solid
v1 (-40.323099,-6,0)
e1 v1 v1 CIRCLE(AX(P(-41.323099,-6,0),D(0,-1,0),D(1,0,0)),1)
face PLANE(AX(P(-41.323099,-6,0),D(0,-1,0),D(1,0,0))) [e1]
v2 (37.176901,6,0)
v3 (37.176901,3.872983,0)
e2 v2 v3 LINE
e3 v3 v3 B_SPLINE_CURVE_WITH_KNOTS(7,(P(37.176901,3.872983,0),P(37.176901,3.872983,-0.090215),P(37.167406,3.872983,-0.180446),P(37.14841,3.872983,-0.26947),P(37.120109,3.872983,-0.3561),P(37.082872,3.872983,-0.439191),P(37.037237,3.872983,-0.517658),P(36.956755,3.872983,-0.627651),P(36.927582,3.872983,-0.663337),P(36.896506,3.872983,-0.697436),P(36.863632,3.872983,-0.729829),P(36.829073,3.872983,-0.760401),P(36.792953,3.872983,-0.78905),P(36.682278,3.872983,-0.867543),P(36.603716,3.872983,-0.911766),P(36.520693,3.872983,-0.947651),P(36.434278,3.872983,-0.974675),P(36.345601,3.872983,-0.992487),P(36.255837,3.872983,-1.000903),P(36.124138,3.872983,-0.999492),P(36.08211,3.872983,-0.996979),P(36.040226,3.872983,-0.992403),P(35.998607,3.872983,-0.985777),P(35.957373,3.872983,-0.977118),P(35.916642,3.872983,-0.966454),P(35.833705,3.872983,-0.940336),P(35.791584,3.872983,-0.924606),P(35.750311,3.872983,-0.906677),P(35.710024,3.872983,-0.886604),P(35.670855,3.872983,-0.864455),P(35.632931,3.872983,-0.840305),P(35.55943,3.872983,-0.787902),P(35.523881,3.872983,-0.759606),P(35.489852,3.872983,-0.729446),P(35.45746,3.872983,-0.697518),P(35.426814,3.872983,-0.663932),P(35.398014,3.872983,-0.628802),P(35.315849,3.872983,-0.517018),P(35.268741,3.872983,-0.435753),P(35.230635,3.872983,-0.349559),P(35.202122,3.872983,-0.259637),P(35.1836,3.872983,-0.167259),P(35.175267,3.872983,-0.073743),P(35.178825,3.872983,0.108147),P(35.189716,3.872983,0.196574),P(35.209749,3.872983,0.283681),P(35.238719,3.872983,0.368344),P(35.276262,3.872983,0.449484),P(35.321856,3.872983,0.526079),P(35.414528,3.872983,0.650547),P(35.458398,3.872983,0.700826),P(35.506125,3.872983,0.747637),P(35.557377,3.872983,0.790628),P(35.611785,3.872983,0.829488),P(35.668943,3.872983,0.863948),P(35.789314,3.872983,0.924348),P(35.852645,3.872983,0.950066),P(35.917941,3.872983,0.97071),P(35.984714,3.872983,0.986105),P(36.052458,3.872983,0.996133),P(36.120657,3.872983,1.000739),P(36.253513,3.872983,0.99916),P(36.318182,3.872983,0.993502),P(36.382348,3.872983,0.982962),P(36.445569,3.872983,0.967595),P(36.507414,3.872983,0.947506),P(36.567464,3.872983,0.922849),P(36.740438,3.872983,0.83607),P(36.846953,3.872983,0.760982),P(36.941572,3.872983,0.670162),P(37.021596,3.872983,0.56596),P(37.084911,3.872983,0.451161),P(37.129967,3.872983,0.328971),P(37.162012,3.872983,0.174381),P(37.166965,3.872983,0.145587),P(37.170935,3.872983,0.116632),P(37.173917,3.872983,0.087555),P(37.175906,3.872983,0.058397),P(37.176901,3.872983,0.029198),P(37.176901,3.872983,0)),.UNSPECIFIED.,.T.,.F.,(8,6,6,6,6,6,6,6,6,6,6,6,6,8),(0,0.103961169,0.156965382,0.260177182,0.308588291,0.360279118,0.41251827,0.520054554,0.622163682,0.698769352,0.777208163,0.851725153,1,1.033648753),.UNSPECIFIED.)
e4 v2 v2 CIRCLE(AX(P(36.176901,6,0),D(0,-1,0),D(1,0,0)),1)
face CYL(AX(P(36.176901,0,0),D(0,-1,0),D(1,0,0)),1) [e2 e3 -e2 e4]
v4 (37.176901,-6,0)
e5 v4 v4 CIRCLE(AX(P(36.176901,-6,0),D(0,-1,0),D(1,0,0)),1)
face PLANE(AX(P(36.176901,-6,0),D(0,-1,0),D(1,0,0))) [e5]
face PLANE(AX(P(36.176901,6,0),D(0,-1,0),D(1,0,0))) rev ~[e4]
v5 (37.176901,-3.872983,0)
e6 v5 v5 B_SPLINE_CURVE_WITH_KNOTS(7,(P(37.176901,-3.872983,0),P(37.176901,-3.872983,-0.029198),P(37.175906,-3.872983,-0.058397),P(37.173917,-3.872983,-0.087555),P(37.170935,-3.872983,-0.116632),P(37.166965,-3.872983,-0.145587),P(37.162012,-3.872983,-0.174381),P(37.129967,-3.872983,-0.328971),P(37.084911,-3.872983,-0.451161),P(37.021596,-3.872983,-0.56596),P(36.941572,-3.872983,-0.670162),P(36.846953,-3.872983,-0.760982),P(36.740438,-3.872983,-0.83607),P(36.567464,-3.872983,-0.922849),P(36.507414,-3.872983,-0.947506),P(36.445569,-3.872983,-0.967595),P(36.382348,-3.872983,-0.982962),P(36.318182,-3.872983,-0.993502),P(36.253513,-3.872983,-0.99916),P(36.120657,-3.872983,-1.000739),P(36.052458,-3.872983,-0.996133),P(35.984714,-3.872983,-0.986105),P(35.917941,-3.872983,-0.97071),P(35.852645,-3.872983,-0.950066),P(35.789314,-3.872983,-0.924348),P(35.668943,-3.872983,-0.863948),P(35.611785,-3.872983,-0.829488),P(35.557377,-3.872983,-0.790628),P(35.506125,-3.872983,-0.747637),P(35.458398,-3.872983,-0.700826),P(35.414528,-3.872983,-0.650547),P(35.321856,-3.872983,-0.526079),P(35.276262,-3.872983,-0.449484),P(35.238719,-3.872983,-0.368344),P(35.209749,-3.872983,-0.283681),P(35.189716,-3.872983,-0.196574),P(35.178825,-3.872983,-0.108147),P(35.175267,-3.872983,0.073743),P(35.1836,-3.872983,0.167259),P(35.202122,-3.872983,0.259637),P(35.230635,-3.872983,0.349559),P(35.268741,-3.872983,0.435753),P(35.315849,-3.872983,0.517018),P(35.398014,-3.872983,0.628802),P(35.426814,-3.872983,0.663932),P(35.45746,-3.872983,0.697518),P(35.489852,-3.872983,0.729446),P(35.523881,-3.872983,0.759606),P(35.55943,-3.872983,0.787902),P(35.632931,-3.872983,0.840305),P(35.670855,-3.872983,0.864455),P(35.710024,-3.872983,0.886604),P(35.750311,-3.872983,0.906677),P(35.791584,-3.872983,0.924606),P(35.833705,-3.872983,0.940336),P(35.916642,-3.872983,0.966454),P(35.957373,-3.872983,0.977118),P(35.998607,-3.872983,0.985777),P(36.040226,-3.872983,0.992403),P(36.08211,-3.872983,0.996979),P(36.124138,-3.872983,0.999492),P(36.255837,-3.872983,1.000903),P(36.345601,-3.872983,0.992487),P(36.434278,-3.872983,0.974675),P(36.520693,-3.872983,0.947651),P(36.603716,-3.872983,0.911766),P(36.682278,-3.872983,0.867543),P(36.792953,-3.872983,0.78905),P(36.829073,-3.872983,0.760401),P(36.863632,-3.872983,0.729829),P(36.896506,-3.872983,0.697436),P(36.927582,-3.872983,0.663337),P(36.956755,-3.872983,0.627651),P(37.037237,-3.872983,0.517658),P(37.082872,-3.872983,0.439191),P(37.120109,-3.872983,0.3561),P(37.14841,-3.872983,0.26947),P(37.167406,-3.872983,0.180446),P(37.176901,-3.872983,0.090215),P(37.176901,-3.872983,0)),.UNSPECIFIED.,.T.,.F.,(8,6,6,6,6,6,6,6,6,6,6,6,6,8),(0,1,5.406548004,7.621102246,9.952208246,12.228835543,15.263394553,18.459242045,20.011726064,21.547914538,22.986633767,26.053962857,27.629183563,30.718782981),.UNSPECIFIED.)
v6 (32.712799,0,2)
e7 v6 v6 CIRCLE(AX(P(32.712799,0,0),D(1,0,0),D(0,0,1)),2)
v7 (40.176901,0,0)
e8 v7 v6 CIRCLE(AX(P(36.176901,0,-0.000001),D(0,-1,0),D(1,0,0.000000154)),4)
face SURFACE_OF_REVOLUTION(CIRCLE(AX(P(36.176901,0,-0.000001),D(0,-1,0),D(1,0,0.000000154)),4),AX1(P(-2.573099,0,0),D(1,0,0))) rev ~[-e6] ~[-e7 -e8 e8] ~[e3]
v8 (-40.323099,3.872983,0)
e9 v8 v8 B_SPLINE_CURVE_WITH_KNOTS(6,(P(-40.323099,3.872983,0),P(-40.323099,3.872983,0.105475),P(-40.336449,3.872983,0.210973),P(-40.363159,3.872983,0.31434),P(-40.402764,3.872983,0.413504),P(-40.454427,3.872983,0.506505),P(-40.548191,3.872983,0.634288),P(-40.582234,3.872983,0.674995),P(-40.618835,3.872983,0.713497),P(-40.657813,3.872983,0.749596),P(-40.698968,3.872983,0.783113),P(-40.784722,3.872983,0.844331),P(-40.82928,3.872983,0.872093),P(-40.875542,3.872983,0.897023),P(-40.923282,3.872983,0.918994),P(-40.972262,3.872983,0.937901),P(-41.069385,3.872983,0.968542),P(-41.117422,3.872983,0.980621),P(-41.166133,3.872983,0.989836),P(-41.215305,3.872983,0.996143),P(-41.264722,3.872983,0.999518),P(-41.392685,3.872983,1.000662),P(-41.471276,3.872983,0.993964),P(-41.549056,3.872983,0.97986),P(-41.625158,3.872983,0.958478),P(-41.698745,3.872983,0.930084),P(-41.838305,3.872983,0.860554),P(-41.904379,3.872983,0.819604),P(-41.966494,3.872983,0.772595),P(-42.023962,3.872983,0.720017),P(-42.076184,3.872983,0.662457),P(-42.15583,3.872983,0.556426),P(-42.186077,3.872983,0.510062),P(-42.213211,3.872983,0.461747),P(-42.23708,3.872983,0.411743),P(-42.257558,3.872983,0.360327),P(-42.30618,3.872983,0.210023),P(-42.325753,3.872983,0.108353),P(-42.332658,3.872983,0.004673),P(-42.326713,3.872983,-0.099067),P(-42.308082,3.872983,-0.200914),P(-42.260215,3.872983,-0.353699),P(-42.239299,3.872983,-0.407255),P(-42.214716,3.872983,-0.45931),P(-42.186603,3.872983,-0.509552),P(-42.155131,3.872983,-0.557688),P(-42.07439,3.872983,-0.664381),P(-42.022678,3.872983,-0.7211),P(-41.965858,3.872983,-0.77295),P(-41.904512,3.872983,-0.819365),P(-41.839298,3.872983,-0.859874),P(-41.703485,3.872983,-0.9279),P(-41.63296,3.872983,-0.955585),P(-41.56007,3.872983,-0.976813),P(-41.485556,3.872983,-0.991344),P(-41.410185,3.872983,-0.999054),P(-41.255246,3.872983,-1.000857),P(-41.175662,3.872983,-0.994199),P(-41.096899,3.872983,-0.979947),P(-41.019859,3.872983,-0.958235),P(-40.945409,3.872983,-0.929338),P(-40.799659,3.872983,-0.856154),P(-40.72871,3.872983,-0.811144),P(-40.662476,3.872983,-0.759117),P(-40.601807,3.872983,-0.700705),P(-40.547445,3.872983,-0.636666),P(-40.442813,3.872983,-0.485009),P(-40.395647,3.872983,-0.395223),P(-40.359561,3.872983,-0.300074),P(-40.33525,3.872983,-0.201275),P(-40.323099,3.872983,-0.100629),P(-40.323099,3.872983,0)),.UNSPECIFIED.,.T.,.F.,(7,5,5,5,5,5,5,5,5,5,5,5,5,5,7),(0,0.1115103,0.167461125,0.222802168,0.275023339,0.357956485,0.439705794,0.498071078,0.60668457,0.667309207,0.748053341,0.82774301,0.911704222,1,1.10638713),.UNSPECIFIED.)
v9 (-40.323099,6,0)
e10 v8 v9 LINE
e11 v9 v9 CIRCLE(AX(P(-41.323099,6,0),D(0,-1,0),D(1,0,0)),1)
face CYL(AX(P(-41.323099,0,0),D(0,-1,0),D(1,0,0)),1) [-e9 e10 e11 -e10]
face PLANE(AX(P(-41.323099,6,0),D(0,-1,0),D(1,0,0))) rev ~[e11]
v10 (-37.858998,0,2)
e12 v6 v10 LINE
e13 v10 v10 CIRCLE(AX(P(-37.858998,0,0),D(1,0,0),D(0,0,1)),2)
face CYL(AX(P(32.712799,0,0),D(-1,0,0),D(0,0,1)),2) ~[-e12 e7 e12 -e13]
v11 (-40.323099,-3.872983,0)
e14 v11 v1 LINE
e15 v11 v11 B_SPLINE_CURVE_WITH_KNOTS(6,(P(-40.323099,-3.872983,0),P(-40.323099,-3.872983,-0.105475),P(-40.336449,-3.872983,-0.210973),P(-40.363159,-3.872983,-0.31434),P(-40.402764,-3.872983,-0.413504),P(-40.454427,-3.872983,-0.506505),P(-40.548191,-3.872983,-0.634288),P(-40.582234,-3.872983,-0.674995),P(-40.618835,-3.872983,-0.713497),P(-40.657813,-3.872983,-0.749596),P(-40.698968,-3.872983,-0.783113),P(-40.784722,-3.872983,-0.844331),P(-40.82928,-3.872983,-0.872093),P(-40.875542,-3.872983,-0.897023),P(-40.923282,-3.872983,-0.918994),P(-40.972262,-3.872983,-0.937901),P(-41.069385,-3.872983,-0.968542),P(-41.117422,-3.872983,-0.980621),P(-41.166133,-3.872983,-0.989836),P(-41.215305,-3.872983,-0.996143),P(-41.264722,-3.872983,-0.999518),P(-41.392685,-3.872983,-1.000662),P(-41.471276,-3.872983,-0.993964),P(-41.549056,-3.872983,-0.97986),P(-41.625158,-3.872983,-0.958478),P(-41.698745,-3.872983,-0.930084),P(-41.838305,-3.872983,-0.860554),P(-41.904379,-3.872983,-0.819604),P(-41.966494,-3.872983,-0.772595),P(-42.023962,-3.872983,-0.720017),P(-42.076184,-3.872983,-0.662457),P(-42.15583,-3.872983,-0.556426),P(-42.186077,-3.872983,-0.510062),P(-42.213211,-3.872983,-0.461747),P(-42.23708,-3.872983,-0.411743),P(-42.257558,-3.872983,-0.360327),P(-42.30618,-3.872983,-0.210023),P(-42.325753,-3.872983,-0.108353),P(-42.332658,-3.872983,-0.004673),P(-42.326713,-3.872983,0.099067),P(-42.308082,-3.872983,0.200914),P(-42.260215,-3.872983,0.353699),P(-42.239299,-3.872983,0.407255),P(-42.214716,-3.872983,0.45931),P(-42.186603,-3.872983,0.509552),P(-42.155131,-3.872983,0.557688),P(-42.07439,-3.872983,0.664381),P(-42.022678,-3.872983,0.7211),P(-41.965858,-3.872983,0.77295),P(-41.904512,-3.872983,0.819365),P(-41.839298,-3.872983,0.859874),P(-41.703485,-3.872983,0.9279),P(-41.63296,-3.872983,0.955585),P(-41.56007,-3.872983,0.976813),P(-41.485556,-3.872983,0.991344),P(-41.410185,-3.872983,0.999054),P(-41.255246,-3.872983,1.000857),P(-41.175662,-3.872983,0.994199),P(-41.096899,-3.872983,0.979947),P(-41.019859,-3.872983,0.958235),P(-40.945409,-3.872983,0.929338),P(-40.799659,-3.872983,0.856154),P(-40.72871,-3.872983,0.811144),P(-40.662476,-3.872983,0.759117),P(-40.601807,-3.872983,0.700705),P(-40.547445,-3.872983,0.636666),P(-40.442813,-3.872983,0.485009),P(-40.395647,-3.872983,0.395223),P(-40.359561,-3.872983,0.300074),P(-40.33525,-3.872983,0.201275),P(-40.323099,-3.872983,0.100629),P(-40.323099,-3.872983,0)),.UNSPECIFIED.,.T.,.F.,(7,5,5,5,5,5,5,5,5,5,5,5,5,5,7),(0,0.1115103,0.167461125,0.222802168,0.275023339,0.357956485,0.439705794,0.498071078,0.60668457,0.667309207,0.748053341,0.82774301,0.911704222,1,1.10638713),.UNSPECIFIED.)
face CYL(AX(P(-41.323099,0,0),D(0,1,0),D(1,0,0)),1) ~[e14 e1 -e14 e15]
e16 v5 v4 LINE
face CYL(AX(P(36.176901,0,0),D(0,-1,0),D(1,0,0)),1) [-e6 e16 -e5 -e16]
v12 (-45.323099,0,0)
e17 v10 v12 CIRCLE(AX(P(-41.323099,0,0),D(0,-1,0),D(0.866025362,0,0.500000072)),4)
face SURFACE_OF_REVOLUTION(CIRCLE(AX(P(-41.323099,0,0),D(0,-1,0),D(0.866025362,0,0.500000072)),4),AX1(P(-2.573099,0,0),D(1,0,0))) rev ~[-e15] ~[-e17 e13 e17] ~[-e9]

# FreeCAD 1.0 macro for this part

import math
import FreeCAD as App
import Part
import Sketcher
from FreeCAD import Vector

doc = App.newDocument("Part")
params = doc.addObject("Spreadsheet::Sheet", "Params")
for row, (alias, value) in enumerate([
    ("sketch1_radius", "4 mm"),
    ("sketch1_width", "85.5 mm"),
    ("revolution_angle", "360 deg"),
    ("sketch2_diameter", "2 mm"),
    ("pad1_length", "12 mm"),
], start=1):
    params.set(f"A{row}", alias)
    params.set(f"B{row}", "=" + value)
    params.setAlias(f"B{row}", alias)

body = doc.addObject("PartDesign::Body", "Body")

sketch1 = doc.addObject("Sketcher::SketchObject", "Sketch")
body.addObject(sketch1)
sketch1.AttachmentSupport = (doc.XZ_Plane, [""])
sketch1.MapMode = "FlatFace"
sketch1.addGeometry(Part.LineSegment(Vector(32.7, 2, 0), Vector(-37.9, 2, 0)), False)
sketch1.addGeometry(Part.ArcOfCircle(Part.Circle(Vector(-41.3, 0, 0), Vector(0, 0, 1), 4), math.radians(30), math.radians(180)), False)
sketch1.addGeometry(Part.LineSegment(Vector(-45.3, 0, 0), Vector(40.2, 0, 0)), False)
sketch1.addGeometry(Part.ArcOfCircle(Part.Circle(Vector(36.2, 0, 0), Vector(0, 0, 1), 4), math.radians(0), math.radians(150)), False)
sketch1.addConstraint(Sketcher.Constraint("Coincident", 0, 2, 1, 1))
sketch1.addConstraint(Sketcher.Constraint("Coincident", 1, 2, 2, 1))
sketch1.addConstraint(Sketcher.Constraint("Coincident", 2, 2, 3, 1))
sketch1.addConstraint(Sketcher.Constraint("Coincident", 3, 2, 0, 1))
sketch1.addConstraint(Sketcher.Constraint("Horizontal", 0))
sketch1.addConstraint(Sketcher.Constraint("Horizontal", 2))
sketch1.addConstraint(Sketcher.Constraint("Equal", 1, 3))
sketch1.addConstraint(Sketcher.Constraint("PointOnObject", 1, 3, -1))
sketch1.addConstraint(Sketcher.Constraint("PointOnObject", 3, 3, -1))
sketch1.addConstraint(Sketcher.Constraint("PointOnObject", 1, 2, -1))
sketch1.addConstraint(Sketcher.Constraint("Radius", 1, 4.0))
sketch1.addConstraint(Sketcher.Constraint("DistanceX", 2, 1, 2, 2, 85.5))
sketch1.addConstraint(Sketcher.Constraint("DistanceY", -1, 1, 0, 2, 2.0))
sketch1.addConstraint(Sketcher.Constraint("DistanceX", 1, 3, -1, 1, 41.323099))
sketch1.setExpression("Constraints[10]", "Params.sketch1_radius")
sketch1.setExpression("Constraints[11]", "Params.sketch1_width")
revolution = doc.addObject("PartDesign::Revolution", "Revolution")
body.addObject(revolution)
revolution.Profile = sketch1
revolution.ReferenceAxis = (sketch1, ["H_Axis"])
revolution.setExpression("Angle", "Params.revolution_angle")

sketch2 = doc.addObject("Sketcher::SketchObject", "Sketch001")
body.addObject(sketch2)
sketch2.AttachmentSupport = (doc.XZ_Plane, [""])
sketch2.MapMode = "FlatFace"
sketch2.addGeometry(Part.Circle(Vector(-41.3, 0, 0), Vector(0, 0, 1), 1), False)
sketch2.addGeometry(Part.Circle(Vector(36.2, 0, 0), Vector(0, 0, 1), 1), False)
sketch2.addConstraint(Sketcher.Constraint("Equal", 0, 1))
sketch2.addConstraint(Sketcher.Constraint("PointOnObject", 0, 3, -1))
sketch2.addConstraint(Sketcher.Constraint("PointOnObject", 1, 3, -1))
sketch2.addConstraint(Sketcher.Constraint("Diameter", 0, 2.0))
sketch2.addConstraint(Sketcher.Constraint("DistanceX", 0, 3, 1, 3, 77.5))
sketch2.addConstraint(Sketcher.Constraint("DistanceX", 0, 3, -1, 1, 41.323099))
sketch2.setExpression("Constraints[3]", "Params.sketch2_diameter")
pad1 = doc.addObject("PartDesign::Pad", "Pad")
body.addObject(pad1)
pad1.Profile = sketch2
pad1.setExpression("Length", "Params.pad1_length")
pad1.Midplane = True

doc.recompute()
